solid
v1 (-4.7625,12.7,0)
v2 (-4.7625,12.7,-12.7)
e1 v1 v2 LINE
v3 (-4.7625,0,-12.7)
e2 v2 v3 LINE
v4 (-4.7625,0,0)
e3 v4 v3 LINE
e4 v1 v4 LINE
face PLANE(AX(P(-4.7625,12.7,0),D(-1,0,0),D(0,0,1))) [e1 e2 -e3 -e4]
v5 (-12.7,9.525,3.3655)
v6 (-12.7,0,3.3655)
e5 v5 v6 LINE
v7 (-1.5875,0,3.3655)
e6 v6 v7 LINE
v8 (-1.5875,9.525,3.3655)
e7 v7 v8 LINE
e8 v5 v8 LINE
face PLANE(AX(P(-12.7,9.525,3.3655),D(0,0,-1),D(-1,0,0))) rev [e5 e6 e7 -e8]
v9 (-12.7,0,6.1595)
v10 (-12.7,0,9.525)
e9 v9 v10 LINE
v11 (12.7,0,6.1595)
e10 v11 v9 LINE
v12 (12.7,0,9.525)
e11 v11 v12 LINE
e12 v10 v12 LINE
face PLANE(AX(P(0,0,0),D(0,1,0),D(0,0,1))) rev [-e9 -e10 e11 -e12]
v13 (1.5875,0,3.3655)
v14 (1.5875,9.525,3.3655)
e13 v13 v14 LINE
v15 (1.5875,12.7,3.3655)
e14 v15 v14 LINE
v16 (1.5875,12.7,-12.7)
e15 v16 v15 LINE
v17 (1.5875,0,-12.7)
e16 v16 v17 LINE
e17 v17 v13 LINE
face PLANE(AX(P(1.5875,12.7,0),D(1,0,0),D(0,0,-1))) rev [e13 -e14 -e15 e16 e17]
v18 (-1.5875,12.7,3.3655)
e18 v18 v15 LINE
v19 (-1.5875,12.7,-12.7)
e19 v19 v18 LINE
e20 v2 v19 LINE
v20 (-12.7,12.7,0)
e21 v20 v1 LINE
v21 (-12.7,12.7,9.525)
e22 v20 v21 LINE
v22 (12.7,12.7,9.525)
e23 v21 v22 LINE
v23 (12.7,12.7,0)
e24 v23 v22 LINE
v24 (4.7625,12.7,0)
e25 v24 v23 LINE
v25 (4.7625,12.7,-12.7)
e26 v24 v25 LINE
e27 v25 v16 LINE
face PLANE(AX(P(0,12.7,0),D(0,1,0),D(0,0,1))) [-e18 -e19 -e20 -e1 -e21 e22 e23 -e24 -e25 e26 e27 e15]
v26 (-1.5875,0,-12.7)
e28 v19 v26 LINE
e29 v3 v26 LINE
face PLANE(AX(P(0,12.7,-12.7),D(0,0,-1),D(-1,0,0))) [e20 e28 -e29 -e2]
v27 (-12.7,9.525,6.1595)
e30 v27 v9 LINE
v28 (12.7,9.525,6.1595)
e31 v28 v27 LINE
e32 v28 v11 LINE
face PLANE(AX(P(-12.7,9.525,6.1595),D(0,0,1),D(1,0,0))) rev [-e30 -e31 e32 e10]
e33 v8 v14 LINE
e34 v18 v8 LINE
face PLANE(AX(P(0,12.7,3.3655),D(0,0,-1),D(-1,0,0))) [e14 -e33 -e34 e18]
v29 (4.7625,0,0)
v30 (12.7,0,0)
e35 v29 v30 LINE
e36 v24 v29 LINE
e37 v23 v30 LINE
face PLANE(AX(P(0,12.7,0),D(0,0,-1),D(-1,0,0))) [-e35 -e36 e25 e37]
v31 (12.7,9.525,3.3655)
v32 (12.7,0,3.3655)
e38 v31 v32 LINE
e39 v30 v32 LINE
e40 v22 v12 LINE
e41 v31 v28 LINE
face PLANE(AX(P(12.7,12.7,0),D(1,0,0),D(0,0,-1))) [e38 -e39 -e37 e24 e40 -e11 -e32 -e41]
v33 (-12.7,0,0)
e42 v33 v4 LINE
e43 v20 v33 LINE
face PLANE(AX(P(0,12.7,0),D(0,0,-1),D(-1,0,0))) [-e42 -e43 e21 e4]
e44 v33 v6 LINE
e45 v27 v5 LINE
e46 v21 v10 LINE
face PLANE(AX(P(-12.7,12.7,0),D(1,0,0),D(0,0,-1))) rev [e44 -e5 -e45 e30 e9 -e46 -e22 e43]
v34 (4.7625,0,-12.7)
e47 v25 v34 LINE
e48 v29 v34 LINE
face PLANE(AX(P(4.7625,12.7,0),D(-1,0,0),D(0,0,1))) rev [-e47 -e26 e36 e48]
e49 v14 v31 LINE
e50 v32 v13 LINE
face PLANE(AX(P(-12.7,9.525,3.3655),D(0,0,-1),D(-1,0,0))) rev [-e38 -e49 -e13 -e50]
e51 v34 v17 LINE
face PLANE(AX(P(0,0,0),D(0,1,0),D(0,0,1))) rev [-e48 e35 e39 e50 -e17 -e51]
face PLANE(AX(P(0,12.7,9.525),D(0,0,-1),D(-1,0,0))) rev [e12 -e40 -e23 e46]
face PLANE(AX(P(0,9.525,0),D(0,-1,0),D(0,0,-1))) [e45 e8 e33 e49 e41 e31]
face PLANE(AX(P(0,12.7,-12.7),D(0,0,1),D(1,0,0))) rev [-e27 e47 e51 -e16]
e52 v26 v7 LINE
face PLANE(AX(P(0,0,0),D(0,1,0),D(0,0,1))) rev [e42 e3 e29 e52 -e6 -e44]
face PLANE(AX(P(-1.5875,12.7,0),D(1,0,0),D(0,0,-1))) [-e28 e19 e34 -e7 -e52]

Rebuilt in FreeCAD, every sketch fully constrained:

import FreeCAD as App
import Part
import Sketcher

V = App.Vector
Q = App.Units.Quantity

doc = App.newDocument("Part")
body = doc.addObject("PartDesign::Body", "Body")

sketch1 = doc.addObject("Sketcher::SketchObject", "Sketch")
body.addObject(sketch1)
sketch1.AttachmentSupport = (doc.XZ_Plane, [""])
sketch1.MapMode = "FlatFace"
sketch1.addGeometry(Part.LineSegment(V(-4.7625, 0, 0), V(-12.7, 0, 0)), False)
sketch1.addGeometry(Part.LineSegment(V(-12.7, 0, 0), V(-12.7, 9.525, 0)), False)
sketch1.addGeometry(Part.LineSegment(V(-12.7, 9.525, 0), V(12.7, 9.525, 0)), False)
sketch1.addGeometry(Part.LineSegment(V(12.7, 9.525, 0), V(12.7, 0, 0)), False)
sketch1.addGeometry(Part.LineSegment(V(12.7, 0, 0), V(4.7625, 0, 0)), False)
sketch1.addGeometry(Part.LineSegment(V(4.7625, 0, 0), V(4.7625, -12.7, 0)), False)
sketch1.addGeometry(Part.LineSegment(V(4.7625, -12.7, 0), V(1.5875, -12.7, 0)), False)
sketch1.addGeometry(Part.LineSegment(V(1.5875, -12.7, 0), V(1.5875, 3.3655, 0)), False)
sketch1.addGeometry(Part.LineSegment(V(1.5875, 3.3655, 0), V(-1.5875, 3.3655, 0)), False)
sketch1.addGeometry(Part.LineSegment(V(-1.5875, 3.3655, 0), V(-1.5875, -12.7, 0)), False)
sketch1.addGeometry(Part.LineSegment(V(-1.5875, -12.7, 0), V(-4.7625, -12.7, 0)), False)
sketch1.addGeometry(Part.LineSegment(V(-4.7625, -12.7, 0), V(-4.7625, 0, 0)), False)
sketch1.addConstraint(Sketcher.Constraint("Coincident", 0, 2, 1, 1))
sketch1.addConstraint(Sketcher.Constraint("Coincident", 1, 2, 2, 1))
sketch1.addConstraint(Sketcher.Constraint("Coincident", 2, 2, 3, 1))
sketch1.addConstraint(Sketcher.Constraint("Coincident", 3, 2, 4, 1))
sketch1.addConstraint(Sketcher.Constraint("Coincident", 4, 2, 5, 1))
sketch1.addConstraint(Sketcher.Constraint("Coincident", 5, 2, 6, 1))
sketch1.addConstraint(Sketcher.Constraint("Coincident", 6, 2, 7, 1))
sketch1.addConstraint(Sketcher.Constraint("Coincident", 7, 2, 8, 1))
sketch1.addConstraint(Sketcher.Constraint("Coincident", 8, 2, 9, 1))
sketch1.addConstraint(Sketcher.Constraint("Coincident", 9, 2, 10, 1))
sketch1.addConstraint(Sketcher.Constraint("Coincident", 10, 2, 11, 1))
sketch1.addConstraint(Sketcher.Constraint("Coincident", 11, 2, 0, 1))
sketch1.addConstraint(Sketcher.Constraint("Horizontal", 0))
sketch1.addConstraint(Sketcher.Constraint("Vertical", 1))
sketch1.addConstraint(Sketcher.Constraint("Horizontal", 2))
sketch1.addConstraint(Sketcher.Constraint("Vertical", 3))
sketch1.addConstraint(Sketcher.Constraint("Horizontal", 4))
sketch1.addConstraint(Sketcher.Constraint("Vertical", 5))
sketch1.addConstraint(Sketcher.Constraint("Horizontal", 6))
sketch1.addConstraint(Sketcher.Constraint("Vertical", 7))
sketch1.addConstraint(Sketcher.Constraint("Horizontal", 8))
sketch1.addConstraint(Sketcher.Constraint("Vertical", 9))
sketch1.addConstraint(Sketcher.Constraint("Horizontal", 10))
sketch1.addConstraint(Sketcher.Constraint("Vertical", 11))
sketch1.addConstraint(Sketcher.Constraint("Symmetric", 0, 2, 3, 2, -1, 1))
sketch1.addConstraint(Sketcher.Constraint("Symmetric", 6, 2, 9, 2, -2))
sketch1.addConstraint(Sketcher.Constraint("Symmetric", 4, 2, 11, 2, -2))
sketch1.addConstraint(Sketcher.Constraint("Equal", 6, 8))
sketch1.addConstraint(Sketcher.Constraint("DistanceX", 2, 1, 2, 2, Q("1 in")))
sketch1.addConstraint(Sketcher.Constraint("DistanceY", 5, 2, 5, 1, Q("0.5 in")))
sketch1.addConstraint(Sketcher.Constraint("DistanceX", 0, 2, 0, 1, Q("0.3125 in")))
sketch1.addConstraint(Sketcher.Constraint("DistanceY", 1, 1, 1, 2, Q("0.375 in")))
sketch1.addConstraint(Sketcher.Constraint("DistanceY", 7, 1, 7, 2, Q("0.6325 in")))
pad1 = doc.addObject("PartDesign::Pad", "Pad")
body.addObject(pad1)
pad1.Profile = sketch1
pad1.Length = Q("0.5 in")
pad1.Reversed = True

sketch2 = doc.addObject("Sketcher::SketchObject", "Sketch001")
body.addObject(sketch2)
sketch2.AttachmentSupport = (doc.XZ_Plane, [""])
sketch2.MapMode = "FlatFace"
sketch2.addGeometry(Part.LineSegment(V(-12.7, 6.1595, 0), V(-12.7, 3.3655, 0)), False)
sketch2.addGeometry(Part.LineSegment(V(-12.7, 3.3655, 0), V(12.7, 3.3655, 0)), False)
sketch2.addGeometry(Part.LineSegment(V(12.7, 3.3655, 0), V(12.7, 6.1595, 0)), False)
sketch2.addGeometry(Part.LineSegment(V(12.7, 6.1595, 0), V(-12.7, 6.1595, 0)), False)
sketch2.addConstraint(Sketcher.Constraint("Coincident", 0, 2, 1, 1))
sketch2.addConstraint(Sketcher.Constraint("Coincident", 1, 2, 2, 1))
sketch2.addConstraint(Sketcher.Constraint("Coincident", 2, 2, 3, 1))
sketch2.addConstraint(Sketcher.Constraint("Coincident", 3, 2, 0, 1))
sketch2.addConstraint(Sketcher.Constraint("Vertical", 0))
sketch2.addConstraint(Sketcher.Constraint("Horizontal", 1))
sketch2.addConstraint(Sketcher.Constraint("Vertical", 2))
sketch2.addConstraint(Sketcher.Constraint("Horizontal", 3))
sketch2.addConstraint(Sketcher.Constraint("DistanceX", 1, 1, 1, 2, Q("1 in")))
sketch2.addConstraint(Sketcher.Constraint("DistanceY", 0, 2, 0, 1, Q("0.11 in")))
sketch2.addConstraint(Sketcher.Constraint("DistanceX", 0, 2, -1, 1, Q("0.5 in")))
sketch2.addConstraint(Sketcher.Constraint("DistanceY", -1, 1, 0, 2, Q("0.1325 in")))
pocket1 = doc.addObject("PartDesign::Pocket", "Pocket")
body.addObject(pocket1)
pocket1.Profile = sketch2
pocket1.Length = Q("0.375 in")

doc.recompute()
